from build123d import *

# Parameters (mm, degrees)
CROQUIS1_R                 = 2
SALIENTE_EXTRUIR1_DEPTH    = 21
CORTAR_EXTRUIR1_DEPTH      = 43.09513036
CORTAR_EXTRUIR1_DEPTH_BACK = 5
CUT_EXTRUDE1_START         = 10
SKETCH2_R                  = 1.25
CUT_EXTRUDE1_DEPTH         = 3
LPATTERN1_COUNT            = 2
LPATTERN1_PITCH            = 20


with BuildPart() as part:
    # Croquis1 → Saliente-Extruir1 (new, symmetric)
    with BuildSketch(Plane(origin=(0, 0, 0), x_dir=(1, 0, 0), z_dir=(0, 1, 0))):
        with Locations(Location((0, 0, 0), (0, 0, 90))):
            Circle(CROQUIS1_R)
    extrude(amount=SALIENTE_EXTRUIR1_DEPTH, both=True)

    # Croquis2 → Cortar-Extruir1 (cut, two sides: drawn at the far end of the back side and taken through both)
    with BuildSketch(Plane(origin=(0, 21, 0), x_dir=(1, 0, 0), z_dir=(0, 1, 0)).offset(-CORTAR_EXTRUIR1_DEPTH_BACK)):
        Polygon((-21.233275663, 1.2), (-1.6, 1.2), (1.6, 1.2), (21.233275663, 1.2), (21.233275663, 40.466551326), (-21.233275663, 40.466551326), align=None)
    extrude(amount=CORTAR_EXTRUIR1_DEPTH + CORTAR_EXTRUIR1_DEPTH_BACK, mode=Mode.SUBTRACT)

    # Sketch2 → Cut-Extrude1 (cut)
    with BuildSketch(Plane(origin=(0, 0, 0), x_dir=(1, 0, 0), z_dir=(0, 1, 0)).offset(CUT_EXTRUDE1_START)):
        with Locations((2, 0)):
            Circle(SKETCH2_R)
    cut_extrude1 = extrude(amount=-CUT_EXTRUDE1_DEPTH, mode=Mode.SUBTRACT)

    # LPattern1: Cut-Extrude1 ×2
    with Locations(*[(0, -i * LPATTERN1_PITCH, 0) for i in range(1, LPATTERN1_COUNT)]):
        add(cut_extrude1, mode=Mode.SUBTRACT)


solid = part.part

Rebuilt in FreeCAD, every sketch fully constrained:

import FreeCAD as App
import Part
import Sketcher

V = App.Vector
Q = App.Units.Quantity


def add_polygon(sketch, points):
    """Adds a closed chain of lines whose ends are joined by coincident constraints."""
    first, n = sketch.GeometryCount, len(points)
    for a, b in zip(points, points[1:] + points[:1]):
        sketch.addGeometry(Part.LineSegment(App.Vector(*a, 0), App.Vector(*b, 0)), False)
    for i in range(n):
        sketch.addConstraint(Sketcher.Constraint("Coincident", first + i, 2, first + (i + 1) % n, 1))

doc = App.newDocument("Part")
body = doc.addObject("PartDesign::Body", "Body")

sketch1 = body.newObject("Sketcher::SketchObject", "Sketch")
sketch1.AttachmentSupport = (doc.getObject("XZ_Plane"), [""])
sketch1.MapMode = "FlatFace"
sketch1.addGeometry(Part.Circle(V(0, 0, 0), V(0, 0, 1), 2), False)
sketch1.addConstraint([
    Sketcher.Constraint("Coincident", 0, 3, -1, 1),
    Sketcher.Constraint("Diameter", 0, Q("4 mm")),
])
pad1 = body.newObject("PartDesign::Pad", "Pad")
pad1.Profile = sketch1
pad1.Length = 42
pad1.Midplane = True

sketch2 = body.newObject("Sketcher::SketchObject", "Sketch001")
sketch2.AttachmentSupport = (doc.getObject("XZ_Plane"), [""])
sketch2.MapMode = "FlatFace"
sketch2.AttachmentOffset = App.Placement(V(0, 0, -21), App.Rotation())
add_polygon(sketch2, [(-21.233276, -1.2), (21.233276, -1.2), (21.233276, -40.466551), (-21.233276, -40.466551)])
sketch2.addConstraint([
    Sketcher.Constraint("Horizontal", 0),
    Sketcher.Constraint("Vertical", 1),
    Sketcher.Constraint("Horizontal", 2),
    Sketcher.Constraint("Vertical", 3),
    Sketcher.Constraint("DistanceY", 0, 2, -1, 1, Q("1.2 mm")),
    Sketcher.Constraint("DistanceX", 0, 1, 0, 2, Q("42.466551 mm")),
    Sketcher.Constraint("DistanceY", 1, 2, 1, 1, Q("39.266551 mm")),
    Sketcher.Constraint("DistanceX", -1, 1, 0, 2, Q("21.233276 mm")),
])
pocket1 = body.newObject("PartDesign::Pocket", "Pocket")
pocket1.Profile = sketch2
pocket1.Type = "TwoLengths"
pocket1.Length = 43.09513
pocket1.Length2 = 5

sketch3 = body.newObject("Sketcher::SketchObject", "Sketch002")
sketch3.AttachmentSupport = (doc.getObject("XZ_Plane"), [""])
sketch3.MapMode = "FlatFace"
sketch3.AttachmentOffset = App.Placement(V(0, 0, -10), App.Rotation())
sketch3.addGeometry(Part.Circle(V(2, 0, 0), V(0, 0, 1), 1.25), False)
sketch3.addConstraint([
    Sketcher.Constraint("PointOnObject", 0, 3, -1),
    Sketcher.Constraint("Diameter", 0, Q("2.5 mm")),
    Sketcher.Constraint("DistanceX", -1, 1, 0, 3, Q("2 mm")),
])
pocket2 = body.newObject("PartDesign::Pocket", "Pocket001")
pocket2.Profile = sketch3
pocket2.Length = 3
pocket2.Reversed = True
doc.recompute()

linearpattern = body.newObject("PartDesign::LinearPattern", "LinearPattern")
linearpattern.Originals = [pocket2]
linearpattern.Direction = (doc.getObject("Y_Axis"), [""])
linearpattern.Mode = "offset"
linearpattern.Offset = 20
linearpattern.Occurrences = 2
linearpattern.Reversed = True
body.Tip = linearpattern

doc.recompute()
